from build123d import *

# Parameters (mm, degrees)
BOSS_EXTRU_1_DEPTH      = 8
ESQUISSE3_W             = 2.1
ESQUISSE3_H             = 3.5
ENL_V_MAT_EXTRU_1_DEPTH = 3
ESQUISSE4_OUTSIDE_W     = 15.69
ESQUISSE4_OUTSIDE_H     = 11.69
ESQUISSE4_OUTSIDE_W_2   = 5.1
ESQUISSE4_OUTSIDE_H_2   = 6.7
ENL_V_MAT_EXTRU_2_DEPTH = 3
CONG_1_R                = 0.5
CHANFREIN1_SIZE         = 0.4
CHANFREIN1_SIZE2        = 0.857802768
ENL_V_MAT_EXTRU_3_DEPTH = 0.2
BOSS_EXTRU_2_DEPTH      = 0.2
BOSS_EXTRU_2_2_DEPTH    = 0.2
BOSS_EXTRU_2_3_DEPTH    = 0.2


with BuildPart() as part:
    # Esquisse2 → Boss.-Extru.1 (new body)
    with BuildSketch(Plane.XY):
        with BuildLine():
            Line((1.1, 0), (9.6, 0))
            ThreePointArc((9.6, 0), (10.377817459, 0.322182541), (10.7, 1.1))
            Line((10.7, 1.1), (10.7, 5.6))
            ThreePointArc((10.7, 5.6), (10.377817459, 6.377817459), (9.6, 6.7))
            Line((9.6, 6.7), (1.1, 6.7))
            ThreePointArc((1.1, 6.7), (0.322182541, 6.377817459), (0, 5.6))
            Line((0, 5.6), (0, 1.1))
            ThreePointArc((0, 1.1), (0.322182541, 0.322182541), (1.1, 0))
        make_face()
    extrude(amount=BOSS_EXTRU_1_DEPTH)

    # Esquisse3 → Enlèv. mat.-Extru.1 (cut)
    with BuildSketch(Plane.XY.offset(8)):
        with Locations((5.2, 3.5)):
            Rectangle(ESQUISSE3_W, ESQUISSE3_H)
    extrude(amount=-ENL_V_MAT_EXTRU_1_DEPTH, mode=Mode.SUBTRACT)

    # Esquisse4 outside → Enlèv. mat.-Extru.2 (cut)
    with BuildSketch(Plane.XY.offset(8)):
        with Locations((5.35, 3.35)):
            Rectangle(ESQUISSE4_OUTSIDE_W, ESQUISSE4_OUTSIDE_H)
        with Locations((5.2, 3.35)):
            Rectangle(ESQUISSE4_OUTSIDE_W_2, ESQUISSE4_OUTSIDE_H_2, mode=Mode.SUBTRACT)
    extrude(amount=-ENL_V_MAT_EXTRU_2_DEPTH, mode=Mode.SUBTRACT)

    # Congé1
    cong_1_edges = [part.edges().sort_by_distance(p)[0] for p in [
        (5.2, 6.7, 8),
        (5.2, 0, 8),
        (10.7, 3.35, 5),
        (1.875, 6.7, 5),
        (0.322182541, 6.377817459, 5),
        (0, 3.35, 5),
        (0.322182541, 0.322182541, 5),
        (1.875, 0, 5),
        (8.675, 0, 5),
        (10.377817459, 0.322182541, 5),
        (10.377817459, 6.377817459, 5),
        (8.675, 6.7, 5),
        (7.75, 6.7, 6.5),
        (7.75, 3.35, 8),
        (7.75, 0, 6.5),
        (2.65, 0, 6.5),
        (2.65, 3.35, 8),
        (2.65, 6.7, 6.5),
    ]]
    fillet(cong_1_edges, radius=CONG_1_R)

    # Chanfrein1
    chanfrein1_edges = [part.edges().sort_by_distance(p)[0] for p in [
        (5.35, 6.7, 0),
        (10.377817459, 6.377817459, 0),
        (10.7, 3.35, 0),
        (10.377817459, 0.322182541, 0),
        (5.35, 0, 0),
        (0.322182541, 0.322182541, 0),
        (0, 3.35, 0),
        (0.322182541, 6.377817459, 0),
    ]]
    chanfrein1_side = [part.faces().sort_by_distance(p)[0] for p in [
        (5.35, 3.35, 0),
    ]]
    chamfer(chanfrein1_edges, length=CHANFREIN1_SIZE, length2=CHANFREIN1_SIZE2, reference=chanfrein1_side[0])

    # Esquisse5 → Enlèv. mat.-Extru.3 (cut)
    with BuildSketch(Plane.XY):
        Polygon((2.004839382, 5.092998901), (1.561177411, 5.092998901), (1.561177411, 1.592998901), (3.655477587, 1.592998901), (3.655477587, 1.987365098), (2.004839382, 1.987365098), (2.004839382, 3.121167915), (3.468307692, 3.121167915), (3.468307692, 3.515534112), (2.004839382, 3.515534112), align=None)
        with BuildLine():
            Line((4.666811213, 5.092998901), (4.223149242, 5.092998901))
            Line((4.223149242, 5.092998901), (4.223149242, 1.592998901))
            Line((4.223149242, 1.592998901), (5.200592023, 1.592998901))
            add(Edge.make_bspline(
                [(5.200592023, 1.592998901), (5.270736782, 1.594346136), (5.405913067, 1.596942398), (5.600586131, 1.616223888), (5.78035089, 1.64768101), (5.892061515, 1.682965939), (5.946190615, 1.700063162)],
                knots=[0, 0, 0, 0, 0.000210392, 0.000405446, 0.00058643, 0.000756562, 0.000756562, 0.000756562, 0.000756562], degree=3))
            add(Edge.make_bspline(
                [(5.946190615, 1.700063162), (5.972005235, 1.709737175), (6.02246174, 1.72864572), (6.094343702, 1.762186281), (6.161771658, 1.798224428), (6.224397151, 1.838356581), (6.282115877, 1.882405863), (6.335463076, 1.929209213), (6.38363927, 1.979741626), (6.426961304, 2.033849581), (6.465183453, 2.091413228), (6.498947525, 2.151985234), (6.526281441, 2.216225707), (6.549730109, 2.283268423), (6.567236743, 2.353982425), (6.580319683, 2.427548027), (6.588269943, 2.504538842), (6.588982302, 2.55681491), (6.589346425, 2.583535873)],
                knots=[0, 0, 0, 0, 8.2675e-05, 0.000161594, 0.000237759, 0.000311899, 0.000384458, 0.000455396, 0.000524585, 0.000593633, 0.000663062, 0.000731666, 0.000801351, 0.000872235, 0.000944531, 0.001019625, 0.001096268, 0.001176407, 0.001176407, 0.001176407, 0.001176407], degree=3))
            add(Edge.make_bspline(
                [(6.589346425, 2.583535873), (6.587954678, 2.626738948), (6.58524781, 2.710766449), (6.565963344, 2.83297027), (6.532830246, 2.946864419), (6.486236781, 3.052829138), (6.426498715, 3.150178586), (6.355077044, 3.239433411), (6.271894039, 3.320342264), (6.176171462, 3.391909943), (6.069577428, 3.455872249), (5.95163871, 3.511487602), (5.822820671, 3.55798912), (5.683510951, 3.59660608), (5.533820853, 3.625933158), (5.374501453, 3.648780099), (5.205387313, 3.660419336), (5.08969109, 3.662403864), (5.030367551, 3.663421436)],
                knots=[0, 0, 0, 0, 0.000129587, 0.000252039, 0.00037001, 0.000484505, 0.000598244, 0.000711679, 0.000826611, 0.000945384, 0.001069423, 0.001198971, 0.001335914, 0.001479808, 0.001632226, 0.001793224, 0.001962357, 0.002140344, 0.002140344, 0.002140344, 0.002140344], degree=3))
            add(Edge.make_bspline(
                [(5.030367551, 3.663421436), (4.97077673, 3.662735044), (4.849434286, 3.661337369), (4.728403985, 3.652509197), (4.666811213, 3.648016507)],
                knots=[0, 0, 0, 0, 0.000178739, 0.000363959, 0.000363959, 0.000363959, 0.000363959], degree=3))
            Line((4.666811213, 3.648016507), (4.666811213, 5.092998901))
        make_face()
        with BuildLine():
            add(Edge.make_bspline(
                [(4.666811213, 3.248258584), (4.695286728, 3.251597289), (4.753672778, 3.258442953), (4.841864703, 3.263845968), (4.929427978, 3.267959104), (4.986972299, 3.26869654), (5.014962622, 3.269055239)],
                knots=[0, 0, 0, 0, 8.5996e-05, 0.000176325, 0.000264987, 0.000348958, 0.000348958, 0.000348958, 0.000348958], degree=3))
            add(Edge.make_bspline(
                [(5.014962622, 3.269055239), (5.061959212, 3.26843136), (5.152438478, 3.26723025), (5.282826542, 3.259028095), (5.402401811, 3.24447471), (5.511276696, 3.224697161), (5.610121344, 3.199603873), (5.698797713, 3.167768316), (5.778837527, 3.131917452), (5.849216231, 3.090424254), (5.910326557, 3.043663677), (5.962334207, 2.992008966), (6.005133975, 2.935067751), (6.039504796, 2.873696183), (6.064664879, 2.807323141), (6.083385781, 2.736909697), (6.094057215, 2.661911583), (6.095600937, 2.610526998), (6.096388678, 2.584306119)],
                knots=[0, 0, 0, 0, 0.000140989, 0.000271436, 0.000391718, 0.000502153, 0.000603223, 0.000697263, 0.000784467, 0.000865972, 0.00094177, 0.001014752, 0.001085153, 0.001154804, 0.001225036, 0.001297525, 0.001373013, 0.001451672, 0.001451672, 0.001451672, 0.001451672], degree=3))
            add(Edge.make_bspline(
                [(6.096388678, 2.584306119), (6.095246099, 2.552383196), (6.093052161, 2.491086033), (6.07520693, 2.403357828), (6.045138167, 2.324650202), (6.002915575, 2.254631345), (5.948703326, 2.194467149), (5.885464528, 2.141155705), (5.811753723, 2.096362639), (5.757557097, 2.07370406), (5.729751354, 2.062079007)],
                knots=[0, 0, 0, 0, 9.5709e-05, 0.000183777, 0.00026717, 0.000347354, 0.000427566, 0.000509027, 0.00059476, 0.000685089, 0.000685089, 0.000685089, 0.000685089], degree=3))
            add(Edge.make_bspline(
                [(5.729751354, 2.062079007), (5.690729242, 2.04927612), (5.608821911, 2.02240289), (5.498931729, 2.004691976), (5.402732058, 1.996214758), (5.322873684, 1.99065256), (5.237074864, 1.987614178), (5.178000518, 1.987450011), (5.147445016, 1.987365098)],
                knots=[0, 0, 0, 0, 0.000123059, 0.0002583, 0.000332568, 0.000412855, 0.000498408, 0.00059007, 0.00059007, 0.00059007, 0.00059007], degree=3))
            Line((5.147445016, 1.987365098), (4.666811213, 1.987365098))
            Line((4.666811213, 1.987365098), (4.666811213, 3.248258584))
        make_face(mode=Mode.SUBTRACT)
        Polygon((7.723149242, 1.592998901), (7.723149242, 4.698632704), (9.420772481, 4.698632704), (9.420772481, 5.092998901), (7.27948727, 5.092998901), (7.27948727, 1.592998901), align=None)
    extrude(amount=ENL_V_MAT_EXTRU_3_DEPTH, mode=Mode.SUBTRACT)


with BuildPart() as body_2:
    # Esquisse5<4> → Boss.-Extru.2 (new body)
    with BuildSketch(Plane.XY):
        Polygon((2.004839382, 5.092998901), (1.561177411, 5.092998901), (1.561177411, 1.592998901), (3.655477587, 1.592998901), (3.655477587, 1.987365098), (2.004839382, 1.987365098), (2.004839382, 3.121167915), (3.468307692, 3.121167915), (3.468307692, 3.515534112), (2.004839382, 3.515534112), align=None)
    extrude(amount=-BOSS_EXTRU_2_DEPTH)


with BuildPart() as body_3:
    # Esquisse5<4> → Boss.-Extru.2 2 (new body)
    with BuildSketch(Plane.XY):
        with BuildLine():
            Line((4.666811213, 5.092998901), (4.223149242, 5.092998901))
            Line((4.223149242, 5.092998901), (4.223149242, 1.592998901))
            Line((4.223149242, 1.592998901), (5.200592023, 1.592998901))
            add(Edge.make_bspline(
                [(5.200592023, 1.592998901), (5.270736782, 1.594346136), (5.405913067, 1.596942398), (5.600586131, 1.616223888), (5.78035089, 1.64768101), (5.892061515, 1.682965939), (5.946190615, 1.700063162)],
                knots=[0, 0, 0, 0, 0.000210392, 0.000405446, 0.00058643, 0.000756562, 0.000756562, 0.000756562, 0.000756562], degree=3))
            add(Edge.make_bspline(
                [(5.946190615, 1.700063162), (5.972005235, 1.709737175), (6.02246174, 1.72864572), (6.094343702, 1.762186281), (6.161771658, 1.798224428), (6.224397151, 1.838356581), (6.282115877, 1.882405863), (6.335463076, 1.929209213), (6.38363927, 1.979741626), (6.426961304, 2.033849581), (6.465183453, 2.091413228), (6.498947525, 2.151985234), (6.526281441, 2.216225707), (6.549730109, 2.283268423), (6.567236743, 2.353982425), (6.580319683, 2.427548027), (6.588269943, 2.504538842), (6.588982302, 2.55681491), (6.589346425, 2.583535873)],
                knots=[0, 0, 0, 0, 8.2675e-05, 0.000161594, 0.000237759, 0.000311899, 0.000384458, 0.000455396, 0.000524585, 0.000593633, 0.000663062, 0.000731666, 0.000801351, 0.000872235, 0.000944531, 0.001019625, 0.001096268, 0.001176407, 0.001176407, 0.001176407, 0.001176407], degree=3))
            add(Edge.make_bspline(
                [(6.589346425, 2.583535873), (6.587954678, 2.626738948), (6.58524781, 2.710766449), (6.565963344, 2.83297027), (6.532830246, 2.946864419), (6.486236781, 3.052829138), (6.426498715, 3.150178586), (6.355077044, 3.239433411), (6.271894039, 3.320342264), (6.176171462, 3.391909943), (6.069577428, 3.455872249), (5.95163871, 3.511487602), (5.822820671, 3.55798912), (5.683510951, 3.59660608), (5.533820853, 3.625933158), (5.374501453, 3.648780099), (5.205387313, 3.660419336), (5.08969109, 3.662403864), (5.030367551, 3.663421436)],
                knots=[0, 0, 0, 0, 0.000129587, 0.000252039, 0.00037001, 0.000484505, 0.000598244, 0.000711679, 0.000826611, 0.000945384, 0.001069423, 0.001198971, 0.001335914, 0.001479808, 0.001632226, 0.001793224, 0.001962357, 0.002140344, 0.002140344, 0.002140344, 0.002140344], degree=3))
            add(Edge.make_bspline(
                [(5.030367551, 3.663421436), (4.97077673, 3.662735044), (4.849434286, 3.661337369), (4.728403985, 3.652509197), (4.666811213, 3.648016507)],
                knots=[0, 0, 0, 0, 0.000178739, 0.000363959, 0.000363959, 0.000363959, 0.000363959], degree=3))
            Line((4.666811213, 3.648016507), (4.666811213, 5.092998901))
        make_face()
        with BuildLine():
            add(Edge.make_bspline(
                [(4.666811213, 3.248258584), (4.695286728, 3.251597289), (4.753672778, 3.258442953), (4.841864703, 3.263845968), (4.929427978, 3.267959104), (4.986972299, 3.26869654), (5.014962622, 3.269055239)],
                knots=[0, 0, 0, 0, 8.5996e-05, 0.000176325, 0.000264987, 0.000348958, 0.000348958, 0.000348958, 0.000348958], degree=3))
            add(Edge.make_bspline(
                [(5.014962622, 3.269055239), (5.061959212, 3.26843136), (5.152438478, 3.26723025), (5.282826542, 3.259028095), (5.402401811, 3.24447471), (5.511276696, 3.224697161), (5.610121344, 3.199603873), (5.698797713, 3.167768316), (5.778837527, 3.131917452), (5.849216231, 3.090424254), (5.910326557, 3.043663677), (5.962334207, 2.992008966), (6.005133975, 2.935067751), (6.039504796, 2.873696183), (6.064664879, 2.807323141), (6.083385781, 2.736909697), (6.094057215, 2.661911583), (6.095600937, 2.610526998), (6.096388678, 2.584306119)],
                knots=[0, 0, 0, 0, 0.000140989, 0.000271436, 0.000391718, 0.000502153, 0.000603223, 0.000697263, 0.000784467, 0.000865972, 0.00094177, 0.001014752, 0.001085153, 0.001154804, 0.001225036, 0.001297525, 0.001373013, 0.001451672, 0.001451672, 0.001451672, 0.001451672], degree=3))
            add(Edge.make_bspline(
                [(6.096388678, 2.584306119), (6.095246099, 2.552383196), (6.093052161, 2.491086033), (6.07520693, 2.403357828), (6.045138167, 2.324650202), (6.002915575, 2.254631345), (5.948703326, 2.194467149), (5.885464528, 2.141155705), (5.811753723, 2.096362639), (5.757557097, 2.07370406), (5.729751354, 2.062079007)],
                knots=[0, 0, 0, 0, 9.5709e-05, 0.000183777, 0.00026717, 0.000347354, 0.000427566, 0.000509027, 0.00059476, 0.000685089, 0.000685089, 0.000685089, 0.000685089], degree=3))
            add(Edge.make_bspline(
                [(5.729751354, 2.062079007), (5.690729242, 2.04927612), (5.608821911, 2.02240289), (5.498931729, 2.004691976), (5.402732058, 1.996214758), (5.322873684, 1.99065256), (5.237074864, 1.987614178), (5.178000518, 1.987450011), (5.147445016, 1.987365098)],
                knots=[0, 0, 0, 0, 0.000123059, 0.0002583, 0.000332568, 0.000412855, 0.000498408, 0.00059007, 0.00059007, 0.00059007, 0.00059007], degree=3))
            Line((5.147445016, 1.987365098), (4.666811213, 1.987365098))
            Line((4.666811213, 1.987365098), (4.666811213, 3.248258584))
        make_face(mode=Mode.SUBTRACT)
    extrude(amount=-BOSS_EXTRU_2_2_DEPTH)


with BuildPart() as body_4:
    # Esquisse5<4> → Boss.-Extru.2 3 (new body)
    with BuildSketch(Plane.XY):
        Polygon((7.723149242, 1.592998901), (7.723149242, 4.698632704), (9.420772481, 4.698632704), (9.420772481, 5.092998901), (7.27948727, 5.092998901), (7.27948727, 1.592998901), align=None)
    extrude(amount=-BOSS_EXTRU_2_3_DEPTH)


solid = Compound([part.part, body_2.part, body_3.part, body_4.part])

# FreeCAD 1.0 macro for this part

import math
import FreeCAD as App
import Part
import Sketcher
from FreeCAD import Vector
Q = App.Units.Quantity


def edges_at(feature, points):
    """Names of the edges that pass closest to the given points."""
    edges = feature.Shape.Edges
    near = lambda p: min(range(len(edges)), key=lambda i: edges[i].distToShape(Part.Vertex(*p))[0])
    return sorted({f"Edge{near(p) + 1}" for p in points})

doc = App.newDocument("Part")
body = doc.addObject("PartDesign::Body", "Body")

# Sketch on XY plane
sketch1 = body.newObject("Sketcher::SketchObject", "Sketch")
sketch1.AttachmentSupport = (doc.getObject("XY_Plane"), [""])
sketch1.MapMode = "FlatFace"
sketch1.addGeometry([
    Part.LineSegment(Vector(1.1, 0, 0), Vector(9.6, 0, 0)),  # 0
    Part.ArcOfCircle(Part.Circle(Vector(9.6, 1.1, 0), Vector(0, 0, 1), 1.1), math.radians(-90), math.radians(0)),  # 1
    Part.LineSegment(Vector(10.7, 1.1, 0), Vector(10.7, 5.6, 0)),  # 2
    Part.ArcOfCircle(Part.Circle(Vector(9.6, 5.6, 0), Vector(0, 0, 1), 1.1), math.radians(0), math.radians(90)),  # 3
    Part.LineSegment(Vector(9.6, 6.7, 0), Vector(1.1, 6.7, 0)),  # 4
    Part.ArcOfCircle(Part.Circle(Vector(1.1, 5.6, 0), Vector(0, 0, 1), 1.1), math.radians(90), math.radians(180)),  # 5
    Part.LineSegment(Vector(0, 5.6, 0), Vector(0, 1.1, 0)),  # 6
    Part.ArcOfCircle(Part.Circle(Vector(1.1, 1.1, 0), Vector(0, 0, 1), 1.1), math.radians(-180), math.radians(-90)),  # 7
], False)
sketch1.addConstraint([
    Sketcher.Constraint("Tangent", 0, 2, 1, 1),
    Sketcher.Constraint("Tangent", 1, 2, 2, 1),
    Sketcher.Constraint("Tangent", 2, 2, 3, 1),
    Sketcher.Constraint("Tangent", 3, 2, 4, 1),
    Sketcher.Constraint("Tangent", 4, 2, 5, 1),
    Sketcher.Constraint("Tangent", 5, 2, 6, 1),
    Sketcher.Constraint("Tangent", 6, 2, 7, 1),
    Sketcher.Constraint("Tangent", 7, 2, 0, 1),
    Sketcher.Constraint("Horizontal", 0),
    Sketcher.Constraint("Vertical", 2),
    Sketcher.Constraint("Horizontal", 4),
    Sketcher.Constraint("Vertical", 6),
    Sketcher.Constraint("Equal", 1, 3),
    Sketcher.Constraint("Equal", 3, 5),
    Sketcher.Constraint("Equal", 5, 7),
    Sketcher.Constraint("PointOnObject", 0, 2, -1),
    Sketcher.Constraint("PointOnObject", 5, 2, -2),
    Sketcher.Constraint("Radius", 1, Q("1.1 mm")),
    Sketcher.Constraint("DistanceX", 0, 1, 0, 2, Q("8.5 mm")),
    Sketcher.Constraint("DistanceY", 2, 1, 2, 2, Q("4.5 mm")),
])
pad1 = body.newObject("PartDesign::Pad", "Pad")
pad1.Profile = sketch1
pad1.Length = 8

# Sketch on XY plane
sketch2 = body.newObject("Sketcher::SketchObject", "Sketch001")
sketch2.AttachmentSupport = (doc.getObject("XY_Plane"), [""])
sketch2.MapMode = "FlatFace"
sketch2.AttachmentOffset = App.Placement(Vector(0, 0, 8), App.Rotation())
sketch2.addGeometry([
    Part.LineSegment(Vector(4.2, 5.2, 0), Vector(4.2, 1.8, 0)),
    Part.LineSegment(Vector(4.2, 1.8, 0), Vector(6.2, 1.8, 0)),
    Part.LineSegment(Vector(6.2, 1.8, 0), Vector(6.2, 5.2, 0)),
    Part.LineSegment(Vector(6.2, 5.2, 0), Vector(4.2, 5.2, 0)),
], False)
sketch2.addConstraint([
    Sketcher.Constraint("Coincident", 0, 2, 1, 1),
    Sketcher.Constraint("Coincident", 1, 2, 2, 1),
    Sketcher.Constraint("Coincident", 2, 2, 3, 1),
    Sketcher.Constraint("Coincident", 3, 2, 0, 1),
    Sketcher.Constraint("Vertical", 0),
    Sketcher.Constraint("Horizontal", 1),
    Sketcher.Constraint("Vertical", 2),
    Sketcher.Constraint("Horizontal", 3),
    Sketcher.Constraint("DistanceX", 1, 1, 1, 2, Q("2.1 mm")),
    Sketcher.Constraint("DistanceY", 0, 2, 0, 1, Q("3.5 mm")),
    Sketcher.Constraint("DistanceX", -1, 1, 0, 2, Q("4.15 mm")),
    Sketcher.Constraint("DistanceY", -1, 1, 0, 2, Q("1.75 mm")),
])
pocket1 = body.newObject("PartDesign::Pocket", "Pocket")
pocket1.Profile = sketch2
pocket1.Length = 3

# Sketch on XY plane
sketch3 = body.newObject("Sketcher::SketchObject", "Sketch002")
sketch3.AttachmentSupport = (doc.getObject("XY_Plane"), [""])
sketch3.MapMode = "FlatFace"
sketch3.AttachmentOffset = App.Placement(Vector(0, 0, 8), App.Rotation())
sketch3.addGeometry([
    Part.LineSegment(Vector(-2, 9, 0), Vector(-2, -2, 0)),  # 0
    Part.LineSegment(Vector(-2, -2, 0), Vector(13, -2, 0)),  # 1
    Part.LineSegment(Vector(13, -2, 0), Vector(13, 9, 0)),  # 2
    Part.LineSegment(Vector(13, 9, 0), Vector(-2, 9, 0)),  # 3
    Part.LineSegment(Vector(8, 0, 0), Vector(3, 0, 0)),  # 4
    Part.LineSegment(Vector(3, 0, 0), Vector(3, 7, 0)),  # 5
    Part.LineSegment(Vector(3, 7, 0), Vector(8, 7, 0)),  # 6
    Part.LineSegment(Vector(8, 7, 0), Vector(8, 0, 0)),  # 7
], False)
sketch3.addConstraint([
    Sketcher.Constraint("Coincident", 0, 2, 1, 1),
    Sketcher.Constraint("Coincident", 1, 2, 2, 1),
    Sketcher.Constraint("Coincident", 2, 2, 3, 1),
    Sketcher.Constraint("Coincident", 3, 2, 0, 1),
    Sketcher.Constraint("Coincident", 4, 2, 5, 1),
    Sketcher.Constraint("Coincident", 5, 2, 6, 1),
    Sketcher.Constraint("Coincident", 6, 2, 7, 1),
    Sketcher.Constraint("Coincident", 7, 2, 4, 1),
    Sketcher.Constraint("Vertical", 0),
    Sketcher.Constraint("Horizontal", 1),
    Sketcher.Constraint("Vertical", 2),
    Sketcher.Constraint("Horizontal", 3),
    Sketcher.Constraint("Horizontal", 4),
    Sketcher.Constraint("Vertical", 5),
    Sketcher.Constraint("Horizontal", 6),
    Sketcher.Constraint("Vertical", 7),
    Sketcher.Constraint("PointOnObject", 4, 2, -1),
    Sketcher.Constraint("DistanceX", 4, 2, 4, 1, Q("5.1 mm")),
    Sketcher.Constraint("DistanceY", 5, 1, 5, 2, Q("6.7 mm")),
    Sketcher.Constraint("DistanceX", 1, 1, 1, 2, Q("15.69 mm")),
    Sketcher.Constraint("DistanceY", 0, 2, 0, 1, Q("11.69 mm")),
    Sketcher.Constraint("DistanceX", -1, 1, 4, 2, Q("2.65 mm")),
    Sketcher.Constraint("DistanceX", 0, 2, -1, 1, Q("2.495 mm")),
    Sketcher.Constraint("DistanceY", 0, 2, -1, 1, Q("2.495 mm")),
])
pocket2 = body.newObject("PartDesign::Pocket", "Pocket001")
pocket2.Profile = sketch3
pocket2.Length = 3
doc.recompute()

fillet = body.newObject("PartDesign::Fillet", "Fillet")
fillet.Base = (pocket2, edges_at(pocket2, [
    (5.2, 6.7, 8),
    (5.2, 0, 8),
    (10.7, 3.35, 5),
    (1.875, 6.7, 5),
    (0.322, 6.378, 5),
    (0, 3.35, 5),
    (0.322, 0.322, 5),
    (1.875, 0, 5),
    (8.675, 0, 5),
    (10.378, 0.322, 5),
    (10.378, 6.378, 5),
    (8.675, 6.7, 5),
    (7.75, 6.7, 6.5),
    (7.75, 3.35, 8),
    (7.75, 0, 6.5),
    (2.65, 0, 6.5),
    (2.65, 3.35, 8),
    (2.65, 6.7, 6.5),
]))
fillet.Radius = 0.5
doc.recompute()

chamfer = body.newObject("PartDesign::Chamfer", "Chamfer")
chamfer.Base = (fillet, edges_at(fillet, [
    (5.35, 6.7, 0),
    (10.378, 6.378, 0),
    (10.7, 3.35, 0),
    (10.378, 0.322, 0),
    (5.35, 0, 0),
    (0.322, 0.322, 0),
    (0, 3.35, 0),
    (0.322, 6.378, 0),
]))
chamfer.ChamferType = "Two distances"
chamfer.Size = 0.4
chamfer.Size2 = 0.857803

# Sketch on XY plane
sketch4 = body.newObject("Sketcher::SketchObject", "Sketch003")
sketch4.AttachmentSupport = (doc.getObject("XY_Plane"), [""])
sketch4.MapMode = "FlatFace"
sketch4.addGeometry([
    Part.LineSegment(Vector(2.004839, 5.092999, 0), Vector(1.561177, 5.092999, 0)),  # 0
    Part.LineSegment(Vector(1.561177, 5.092999, 0), Vector(1.561177, 1.592999, 0)),  # 1
    Part.LineSegment(Vector(1.561177, 1.592999, 0), Vector(3.655478, 1.592999, 0)),  # 2
    Part.LineSegment(Vector(3.655478, 1.592999, 0), Vector(3.655478, 1.987365, 0)),  # 3
    Part.LineSegment(Vector(3.655478, 1.987365, 0), Vector(2.004839, 1.987365, 0)),  # 4
    Part.LineSegment(Vector(2.004839, 1.987365, 0), Vector(2.004839, 3.121168, 0)),  # 5
    Part.LineSegment(Vector(2.004839, 3.121168, 0), Vector(3.468308, 3.121168, 0)),  # 6
    Part.LineSegment(Vector(3.468308, 3.121168, 0), Vector(3.468308, 3.515534, 0)),  # 7
    Part.LineSegment(Vector(3.468308, 3.515534, 0), Vector(2.004839, 3.515534, 0)),  # 8
    Part.LineSegment(Vector(2.004839, 3.515534, 0), Vector(2.004839, 5.092999, 0)),  # 9
    Part.LineSegment(Vector(4.666811, 5.092999, 0), Vector(4.223149, 5.092999, 0)),  # 10
    Part.LineSegment(Vector(4.223149, 5.092999, 0), Vector(4.223149, 1.592999, 0)),  # 11
    Part.LineSegment(Vector(4.223149, 1.592999, 0), Vector(5.200592, 1.592999, 0)),  # 12
    Part.BSplineCurve([Vector(5.200592, 1.592999, 0), Vector(5.270737, 1.594346, 0), Vector(5.405913, 1.596942, 0), Vector(5.600586, 1.616224, 0), Vector(5.780351, 1.647681, 0), Vector(5.892062, 1.682966, 0), Vector(5.946191, 1.700063, 0)], [4, 1, 1, 1, 4], [0, 0.000210392, 0.000405446, 0.00058643, 0.000756562], False, 3, [1, 1, 1, 1, 1, 1, 1], False),  # 13
    Part.BSplineCurve([Vector(5.946191, 1.700063, 0), Vector(5.972005, 1.709737, 0), Vector(6.022462, 1.728646, 0), Vector(6.094344, 1.762186, 0), Vector(6.161772, 1.798224, 0), Vector(6.224397, 1.838357, 0), Vector(6.282116, 1.882406, 0), Vector(6.335463, 1.929209, 0), Vector(6.383639, 1.979742, 0), Vector(6.426961, 2.03385, 0), Vector(6.465183, 2.091413, 0), Vector(6.498948, 2.151985, 0), Vector(6.526281, 2.216226, 0), Vector(6.54973, 2.283268, 0), Vector(6.567237, 2.353982, 0), Vector(6.58032, 2.427548, 0), Vector(6.58827, 2.504539, 0), Vector(6.588982, 2.556815, 0), Vector(6.589346, 2.583536, 0)], [4, 1, 1, 1, 1, 1, 1, 1, 1, 1, 1, 1, 1, 1, 1, 1, 4], [0, 0.000082675, 0.000161594, 0.000237759, 0.000311899, 0.000384458, 0.000455396, 0.000524585, 0.000593633, 0.000663062, 0.000731666, 0.000801351, 0.000872235, 0.000944531, 0.001019625, 0.001096268, 0.001176407], False, 3, [1, 1, 1, 1, 1, 1, 1, 1, 1, 1, 1, 1, 1, 1, 1, 1, 1, 1, 1], False),  # 14
    Part.BSplineCurve([Vector(6.589346, 2.583536, 0), Vector(6.587955, 2.626739, 0), Vector(6.585248, 2.710766, 0), Vector(6.565963, 2.83297, 0), Vector(6.53283, 2.946864, 0), Vector(6.486237, 3.052829, 0), Vector(6.426499, 3.150179, 0), Vector(6.355077, 3.239433, 0), Vector(6.271894, 3.320342, 0), Vector(6.176171, 3.39191, 0), Vector(6.069577, 3.455872, 0), Vector(5.951639, 3.511488, 0), Vector(5.822821, 3.557989, 0), Vector(5.683511, 3.596606, 0), Vector(5.533821, 3.625933, 0), Vector(5.374501, 3.64878, 0), Vector(5.205387, 3.660419, 0), Vector(5.089691, 3.662404, 0), Vector(5.030368, 3.663421, 0)], [4, 1, 1, 1, 1, 1, 1, 1, 1, 1, 1, 1, 1, 1, 1, 1, 4], [0, 0.000129587, 0.000252039, 0.00037001, 0.000484505, 0.000598244, 0.000711679, 0.000826611, 0.000945384, 0.001069423, 0.001198971, 0.001335914, 0.001479808, 0.001632226, 0.001793224, 0.001962357, 0.002140344], False, 3, [1, 1, 1, 1, 1, 1, 1, 1, 1, 1, 1, 1, 1, 1, 1, 1, 1, 1, 1], False),  # 15
    Part.BSplineCurve([Vector(5.030368, 3.663421, 0), Vector(4.970777, 3.662735, 0), Vector(4.849434, 3.661337, 0), Vector(4.728404, 3.652509, 0), Vector(4.666811, 3.648017, 0)], [4, 1, 4], [0, 0.000178739, 0.000363959], False, 3, [1, 1, 1, 1, 1], False),  # 16
    Part.LineSegment(Vector(4.666811, 3.648017, 0), Vector(4.666811, 5.092999, 0)),  # 17
    Part.LineSegment(Vector(4.666811, 1.987365, 0), Vector(4.666811, 3.248259, 0)),  # 18
    Part.BSplineCurve([Vector(4.666811, 3.248259, 0), Vector(4.695287, 3.251597, 0), Vector(4.753673, 3.258443, 0), Vector(4.841865, 3.263846, 0), Vector(4.929428, 3.267959, 0), Vector(4.986972, 3.268697, 0), Vector(5.014963, 3.269055, 0)], [4, 1, 1, 1, 4], [0, 0.000085996, 0.000176325, 0.000264987, 0.000348958], False, 3, [1, 1, 1, 1, 1, 1, 1], False),  # 19
    Part.BSplineCurve([Vector(5.014963, 3.269055, 0), Vector(5.061959, 3.268431, 0), Vector(5.152438, 3.26723, 0), Vector(5.282827, 3.259028, 0), Vector(5.402402, 3.244475, 0), Vector(5.511277, 3.224697, 0), Vector(5.610121, 3.199604, 0), Vector(5.698798, 3.167768, 0), Vector(5.778838, 3.131917, 0), Vector(5.849216, 3.090424, 0), Vector(5.910327, 3.043664, 0), Vector(5.962334, 2.992009, 0), Vector(6.005134, 2.935068, 0), Vector(6.039505, 2.873696, 0), Vector(6.064665, 2.807323, 0), Vector(6.083386, 2.73691, 0), Vector(6.094057, 2.661912, 0), Vector(6.095601, 2.610527, 0), Vector(6.096389, 2.584306, 0)], [4, 1, 1, 1, 1, 1, 1, 1, 1, 1, 1, 1, 1, 1, 1, 1, 4], [0, 0.000140989, 0.000271436, 0.000391718, 0.000502153, 0.000603223, 0.000697263, 0.000784467, 0.000865972, 0.00094177, 0.001014752, 0.001085153, 0.001154804, 0.001225036, 0.001297525, 0.001373013, 0.001451672], False, 3, [1, 1, 1, 1, 1, 1, 1, 1, 1, 1, 1, 1, 1, 1, 1, 1, 1, 1, 1], False),  # 20
    Part.BSplineCurve([Vector(6.096389, 2.584306, 0), Vector(6.095246, 2.552383, 0), Vector(6.093052, 2.491086, 0), Vector(6.075207, 2.403358, 0), Vector(6.045138, 2.32465, 0), Vector(6.002916, 2.254631, 0), Vector(5.948703, 2.194467, 0), Vector(5.885465, 2.141156, 0), Vector(5.811754, 2.096363, 0), Vector(5.757557, 2.073704, 0), Vector(5.729751, 2.062079, 0)], [4, 1, 1, 1, 1, 1, 1, 1, 4], [0, 0.000095709, 0.000183777, 0.00026717, 0.000347354, 0.000427566, 0.000509027, 0.00059476, 0.000685089], False, 3, [1, 1, 1, 1, 1, 1, 1, 1, 1, 1, 1], False),  # 21
    Part.BSplineCurve([Vector(5.729751, 2.062079, 0), Vector(5.690729, 2.049276, 0), Vector(5.608822, 2.022403, 0), Vector(5.498932, 2.004692, 0), Vector(5.402732, 1.996215, 0), Vector(5.322874, 1.990653, 0), Vector(5.237075, 1.987614, 0), Vector(5.178001, 1.98745, 0), Vector(5.147445, 1.987365, 0)], [4, 1, 1, 1, 1, 1, 4], [0, 0.000123059, 0.0002583, 0.000332568, 0.000412855, 0.000498408, 0.00059007], False, 3, [1, 1, 1, 1, 1, 1, 1, 1, 1], False),  # 22
    Part.LineSegment(Vector(5.147445, 1.987365, 0), Vector(4.666811, 1.987365, 0)),  # 23
    Part.LineSegment(Vector(7.723149, 1.592999, 0), Vector(7.723149, 4.698633, 0)),  # 24
    Part.LineSegment(Vector(7.723149, 4.698633, 0), Vector(9.420772, 4.698633, 0)),  # 25
    Part.LineSegment(Vector(9.420772, 4.698633, 0), Vector(9.420772, 5.092999, 0)),  # 26
    Part.LineSegment(Vector(9.420772, 5.092999, 0), Vector(7.279487, 5.092999, 0)),  # 27
    Part.LineSegment(Vector(7.279487, 5.092999, 0), Vector(7.279487, 1.592999, 0)),  # 28
    Part.LineSegment(Vector(7.279487, 1.592999, 0), Vector(7.723149, 1.592999, 0)),  # 29
], False)
sketch4.addConstraint([
    Sketcher.Constraint("Block", 13),
    Sketcher.Constraint("Block", 14),
    Sketcher.Constraint("Block", 15),
    Sketcher.Constraint("Block", 16),
    Sketcher.Constraint("Block", 19),
    Sketcher.Constraint("Block", 20),
    Sketcher.Constraint("Block", 21),
    Sketcher.Constraint("Block", 22),
    Sketcher.Constraint("Coincident", 0, 2, 1, 1),
    Sketcher.Constraint("Coincident", 1, 2, 2, 1),
    Sketcher.Constraint("Coincident", 2, 2, 3, 1),
    Sketcher.Constraint("Coincident", 3, 2, 4, 1),
    Sketcher.Constraint("Coincident", 4, 2, 5, 1),
    Sketcher.Constraint("Coincident", 5, 2, 6, 1),
    Sketcher.Constraint("Coincident", 6, 2, 7, 1),
    Sketcher.Constraint("Coincident", 7, 2, 8, 1),
    Sketcher.Constraint("Coincident", 8, 2, 9, 1),
    Sketcher.Constraint("Coincident", 9, 2, 0, 1),
    Sketcher.Constraint("Coincident", 10, 2, 11, 1),
    Sketcher.Constraint("Coincident", 11, 2, 12, 1),
    Sketcher.Constraint("Coincident", 12, 2, 13, 1),
    Sketcher.Constraint("Coincident", 16, 2, 17, 1),
    Sketcher.Constraint("Coincident", 17, 2, 10, 1),
    Sketcher.Constraint("Coincident", 18, 2, 19, 1),
    Sketcher.Constraint("Coincident", 22, 2, 23, 1),
    Sketcher.Constraint("Coincident", 23, 2, 18, 1),
    Sketcher.Constraint("Coincident", 24, 2, 25, 1),
    Sketcher.Constraint("Coincident", 25, 2, 26, 1),
    Sketcher.Constraint("Coincident", 26, 2, 27, 1),
    Sketcher.Constraint("Coincident", 27, 2, 28, 1),
    Sketcher.Constraint("Coincident", 28, 2, 29, 1),
    Sketcher.Constraint("Coincident", 29, 2, 24, 1),
    Sketcher.Constraint("Horizontal", 0),
    Sketcher.Constraint("Vertical", 1),
    Sketcher.Constraint("Horizontal", 2),
    Sketcher.Constraint("Vertical", 3),
    Sketcher.Constraint("Horizontal", 4),
    Sketcher.Constraint("Vertical", 5),
    Sketcher.Constraint("Horizontal", 6),
    Sketcher.Constraint("Vertical", 7),
    Sketcher.Constraint("Horizontal", 8),
    Sketcher.Constraint("Vertical", 9),
    Sketcher.Constraint("Horizontal", 10),
    Sketcher.Constraint("Vertical", 11),
    Sketcher.Constraint("Horizontal", 12),
    Sketcher.Constraint("Vertical", 17),
    Sketcher.Constraint("Vertical", 18),
    Sketcher.Constraint("Horizontal", 23),
    Sketcher.Constraint("Vertical", 24),
    Sketcher.Constraint("Horizontal", 25),
    Sketcher.Constraint("Vertical", 26),
    Sketcher.Constraint("Horizontal", 27),
    Sketcher.Constraint("Vertical", 28),
    Sketcher.Constraint("Horizontal", 29),
    Sketcher.Constraint("DistanceY", 1, 2, 1, 1, Q("3.5 mm")),
    Sketcher.Constraint("DistanceY", 11, 2, 11, 1, Q("3.5 mm")),
    Sketcher.Constraint("DistanceY", 28, 2, 28, 1, Q("3.5 mm")),
    Sketcher.Constraint("DistanceX", 10, 2, 24, 2, Q("3.5 mm")),
    Sketcher.Constraint("DistanceX", 2, 1, 2, 2, Q("2.0943 mm")),
    Sketcher.Constraint("DistanceY", -1, 1, 0, 2, Q("5.092999 mm")),
    Sketcher.Constraint("DistanceY", -1, 1, 26, 2, Q("5.092999 mm")),
    Sketcher.Constraint("DistanceX", 0, 2, 0, 1, Q("0.443662 mm")),
    Sketcher.Constraint("DistanceX", 4, 2, 4, 1, Q("1.650638 mm")),
    Sketcher.Constraint("DistanceX", 6, 1, 6, 2, Q("1.463468 mm")),
    Sketcher.Constraint("DistanceX", 10, 2, 10, 1, Q("0.443662 mm")),
    Sketcher.Constraint("DistanceX", 29, 1, 29, 2, Q("0.443662 mm")),
    Sketcher.Constraint("DistanceX", 25, 1, 25, 2, Q("1.697623 mm")),
    Sketcher.Constraint("DistanceY", 3, 1, 3, 2, Q("0.394366 mm")),
    Sketcher.Constraint("DistanceY", 5, 1, 5, 2, Q("1.133803 mm")),
    Sketcher.Constraint("DistanceY", 7, 1, 7, 2, Q("0.394366 mm")),
    Sketcher.Constraint("DistanceY", 24, 1, 24, 2, Q("3.105634 mm")),
    Sketcher.Constraint("DistanceX", -1, 1, 4, 2, Q("2.004839 mm")),
])
pocket3 = body.newObject("PartDesign::Pocket", "Pocket002")
pocket3.Profile = sketch4
pocket3.Length = 0.2
pocket3.Reversed = True
body2 = doc.addObject("PartDesign::Body", "Body001")

# Sketch on XY plane
sketch5 = body2.newObject("Sketcher::SketchObject", "Sketch004")
sketch5.AttachmentSupport = (doc.getObject("XY_Plane001"), [""])
sketch5.MapMode = "FlatFace"
sketch5.addGeometry([
    Part.LineSegment(Vector(2, 5.09, 0), Vector(1.56, 5.09, 0)),  # 0
    Part.LineSegment(Vector(1.56, 5.09, 0), Vector(1.56, 1.59, 0)),  # 1
    Part.LineSegment(Vector(1.56, 1.59, 0), Vector(3.66, 1.59, 0)),  # 2
    Part.LineSegment(Vector(3.66, 1.59, 0), Vector(3.66, 1.99, 0)),  # 3
    Part.LineSegment(Vector(3.66, 1.99, 0), Vector(2, 1.99, 0)),  # 4
    Part.LineSegment(Vector(2, 1.99, 0), Vector(2, 3.12, 0)),  # 5
    Part.LineSegment(Vector(2, 3.12, 0), Vector(3.47, 3.12, 0)),  # 6
    Part.LineSegment(Vector(3.47, 3.12, 0), Vector(3.47, 3.52, 0)),  # 7
    Part.LineSegment(Vector(3.47, 3.52, 0), Vector(2, 3.52, 0)),  # 8
    Part.LineSegment(Vector(2, 3.52, 0), Vector(2, 5.09, 0)),  # 9
], False)
sketch5.addConstraint([
    Sketcher.Constraint("Coincident", 0, 2, 1, 1),
    Sketcher.Constraint("Coincident", 1, 2, 2, 1),
    Sketcher.Constraint("Coincident", 2, 2, 3, 1),
    Sketcher.Constraint("Coincident", 3, 2, 4, 1),
    Sketcher.Constraint("Coincident", 4, 2, 5, 1),
    Sketcher.Constraint("Coincident", 5, 2, 6, 1),
    Sketcher.Constraint("Coincident", 6, 2, 7, 1),
    Sketcher.Constraint("Coincident", 7, 2, 8, 1),
    Sketcher.Constraint("Coincident", 8, 2, 9, 1),
    Sketcher.Constraint("Coincident", 9, 2, 0, 1),
    Sketcher.Constraint("Horizontal", 0),
    Sketcher.Constraint("Vertical", 1),
    Sketcher.Constraint("Horizontal", 2),
    Sketcher.Constraint("Vertical", 3),
    Sketcher.Constraint("Horizontal", 4),
    Sketcher.Constraint("Vertical", 5),
    Sketcher.Constraint("Horizontal", 6),
    Sketcher.Constraint("Vertical", 7),
    Sketcher.Constraint("Horizontal", 8),
    Sketcher.Constraint("Vertical", 9),
    Sketcher.Constraint("Vertical", 5, 2, 8, 2),
    Sketcher.Constraint("Equal", 3, 7),
    Sketcher.Constraint("DistanceY", 1, 2, 1, 1, Q("3.5 mm")),
    Sketcher.Constraint("DistanceX", 2, 1, 2, 2, Q("2.0943 mm")),
    Sketcher.Constraint("DistanceY", -1, 1, 0, 2, Q("5.092999 mm")),
    Sketcher.Constraint("DistanceX", 0, 2, 0, 1, Q("0.443662 mm")),
    Sketcher.Constraint("DistanceX", 6, 1, 6, 2, Q("1.463468 mm")),
    Sketcher.Constraint("DistanceY", 3, 1, 3, 2, Q("0.394366 mm")),
    Sketcher.Constraint("DistanceY", 5, 1, 5, 2, Q("1.133803 mm")),
    Sketcher.Constraint("DistanceX", -1, 1, 4, 2, Q("2.004839 mm")),
])
pad2 = body2.newObject("PartDesign::Pad", "Pad001")
pad2.Profile = sketch5
pad2.Length = 0.2
pad2.Reversed = True
body3 = doc.addObject("PartDesign::Body", "Body002")

# Sketch on XY plane
sketch6 = body3.newObject("Sketcher::SketchObject", "Sketch005")
sketch6.AttachmentSupport = (doc.getObject("XY_Plane002"), [""])
sketch6.MapMode = "FlatFace"
sketch6.addGeometry([
    Part.LineSegment(Vector(4.666811, 5.092999, 0), Vector(4.223149, 5.092999, 0)),  # 0
    Part.LineSegment(Vector(4.223149, 5.092999, 0), Vector(4.223149, 1.592999, 0)),  # 1
    Part.LineSegment(Vector(4.223149, 1.592999, 0), Vector(5.200592, 1.592999, 0)),  # 2
    Part.BSplineCurve([Vector(5.200592, 1.592999, 0), Vector(5.270737, 1.594346, 0), Vector(5.405913, 1.596942, 0), Vector(5.600586, 1.616224, 0), Vector(5.780351, 1.647681, 0), Vector(5.892062, 1.682966, 0), Vector(5.946191, 1.700063, 0)], [4, 1, 1, 1, 4], [0, 0.000210392, 0.000405446, 0.00058643, 0.000756562], False, 3, [1, 1, 1, 1, 1, 1, 1], False),  # 3
    Part.BSplineCurve([Vector(5.946191, 1.700063, 0), Vector(5.972005, 1.709737, 0), Vector(6.022462, 1.728646, 0), Vector(6.094344, 1.762186, 0), Vector(6.161772, 1.798224, 0), Vector(6.224397, 1.838357, 0), Vector(6.282116, 1.882406, 0), Vector(6.335463, 1.929209, 0), Vector(6.383639, 1.979742, 0), Vector(6.426961, 2.03385, 0), Vector(6.465183, 2.091413, 0), Vector(6.498948, 2.151985, 0), Vector(6.526281, 2.216226, 0), Vector(6.54973, 2.283268, 0), Vector(6.567237, 2.353982, 0), Vector(6.58032, 2.427548, 0), Vector(6.58827, 2.504539, 0), Vector(6.588982, 2.556815, 0), Vector(6.589346, 2.583536, 0)], [4, 1, 1, 1, 1, 1, 1, 1, 1, 1, 1, 1, 1, 1, 1, 1, 4], [0, 0.000082675, 0.000161594, 0.000237759, 0.000311899, 0.000384458, 0.000455396, 0.000524585, 0.000593633, 0.000663062, 0.000731666, 0.000801351, 0.000872235, 0.000944531, 0.001019625, 0.001096268, 0.001176407], False, 3, [1, 1, 1, 1, 1, 1, 1, 1, 1, 1, 1, 1, 1, 1, 1, 1, 1, 1, 1], False),  # 4
    Part.BSplineCurve([Vector(6.589346, 2.583536, 0), Vector(6.587955, 2.626739, 0), Vector(6.585248, 2.710766, 0), Vector(6.565963, 2.83297, 0), Vector(6.53283, 2.946864, 0), Vector(6.486237, 3.052829, 0), Vector(6.426499, 3.150179, 0), Vector(6.355077, 3.239433, 0), Vector(6.271894, 3.320342, 0), Vector(6.176171, 3.39191, 0), Vector(6.069577, 3.455872, 0), Vector(5.951639, 3.511488, 0), Vector(5.822821, 3.557989, 0), Vector(5.683511, 3.596606, 0), Vector(5.533821, 3.625933, 0), Vector(5.374501, 3.64878, 0), Vector(5.205387, 3.660419, 0), Vector(5.089691, 3.662404, 0), Vector(5.030368, 3.663421, 0)], [4, 1, 1, 1, 1, 1, 1, 1, 1, 1, 1, 1, 1, 1, 1, 1, 4], [0, 0.000129587, 0.000252039, 0.00037001, 0.000484505, 0.000598244, 0.000711679, 0.000826611, 0.000945384, 0.001069423, 0.001198971, 0.001335914, 0.001479808, 0.001632226, 0.001793224, 0.001962357, 0.002140344], False, 3, [1, 1, 1, 1, 1, 1, 1, 1, 1, 1, 1, 1, 1, 1, 1, 1, 1, 1, 1], False),  # 5
    Part.BSplineCurve([Vector(5.030368, 3.663421, 0), Vector(4.970777, 3.662735, 0), Vector(4.849434, 3.661337, 0), Vector(4.728404, 3.652509, 0), Vector(4.666811, 3.648017, 0)], [4, 1, 4], [0, 0.000178739, 0.000363959], False, 3, [1, 1, 1, 1, 1], False),  # 6
    Part.LineSegment(Vector(4.666811, 3.648017, 0), Vector(4.666811, 5.092999, 0)),  # 7
    Part.LineSegment(Vector(4.666811, 1.987365, 0), Vector(4.666811, 3.248259, 0)),  # 8
    Part.BSplineCurve([Vector(4.666811, 3.248259, 0), Vector(4.695287, 3.251597, 0), Vector(4.753673, 3.258443, 0), Vector(4.841865, 3.263846, 0), Vector(4.929428, 3.267959, 0), Vector(4.986972, 3.268697, 0), Vector(5.014963, 3.269055, 0)], [4, 1, 1, 1, 4], [0, 0.000085996, 0.000176325, 0.000264987, 0.000348958], False, 3, [1, 1, 1, 1, 1, 1, 1], False),  # 9
    Part.BSplineCurve([Vector(5.014963, 3.269055, 0), Vector(5.061959, 3.268431, 0), Vector(5.152438, 3.26723, 0), Vector(5.282827, 3.259028, 0), Vector(5.402402, 3.244475, 0), Vector(5.511277, 3.224697, 0), Vector(5.610121, 3.199604, 0), Vector(5.698798, 3.167768, 0), Vector(5.778838, 3.131917, 0), Vector(5.849216, 3.090424, 0), Vector(5.910327, 3.043664, 0), Vector(5.962334, 2.992009, 0), Vector(6.005134, 2.935068, 0), Vector(6.039505, 2.873696, 0), Vector(6.064665, 2.807323, 0), Vector(6.083386, 2.73691, 0), Vector(6.094057, 2.661912, 0), Vector(6.095601, 2.610527, 0), Vector(6.096389, 2.584306, 0)], [4, 1, 1, 1, 1, 1, 1, 1, 1, 1, 1, 1, 1, 1, 1, 1, 4], [0, 0.000140989, 0.000271436, 0.000391718, 0.000502153, 0.000603223, 0.000697263, 0.000784467, 0.000865972, 0.00094177, 0.001014752, 0.001085153, 0.001154804, 0.001225036, 0.001297525, 0.001373013, 0.001451672], False, 3, [1, 1, 1, 1, 1, 1, 1, 1, 1, 1, 1, 1, 1, 1, 1, 1, 1, 1, 1], False),  # 10
    Part.BSplineCurve([Vector(6.096389, 2.584306, 0), Vector(6.095246, 2.552383, 0), Vector(6.093052, 2.491086, 0), Vector(6.075207, 2.403358, 0), Vector(6.045138, 2.32465, 0), Vector(6.002916, 2.254631, 0), Vector(5.948703, 2.194467, 0), Vector(5.885465, 2.141156, 0), Vector(5.811754, 2.096363, 0), Vector(5.757557, 2.073704, 0), Vector(5.729751, 2.062079, 0)], [4, 1, 1, 1, 1, 1, 1, 1, 4], [0, 0.000095709, 0.000183777, 0.00026717, 0.000347354, 0.000427566, 0.000509027, 0.00059476, 0.000685089], False, 3, [1, 1, 1, 1, 1, 1, 1, 1, 1, 1, 1], False),  # 11
    Part.BSplineCurve([Vector(5.729751, 2.062079, 0), Vector(5.690729, 2.049276, 0), Vector(5.608822, 2.022403, 0), Vector(5.498932, 2.004692, 0), Vector(5.402732, 1.996215, 0), Vector(5.322874, 1.990653, 0), Vector(5.237075, 1.987614, 0), Vector(5.178001, 1.98745, 0), Vector(5.147445, 1.987365, 0)], [4, 1, 1, 1, 1, 1, 4], [0, 0.000123059, 0.0002583, 0.000332568, 0.000412855, 0.000498408, 0.00059007], False, 3, [1, 1, 1, 1, 1, 1, 1, 1, 1], False),  # 12
    Part.LineSegment(Vector(5.147445, 1.987365, 0), Vector(4.666811, 1.987365, 0)),  # 13
], False)
sketch6.addConstraint([
    Sketcher.Constraint("Block", 3),
    Sketcher.Constraint("Block", 4),
    Sketcher.Constraint("Block", 5),
    Sketcher.Constraint("Block", 6),
    Sketcher.Constraint("Block", 9),
    Sketcher.Constraint("Block", 10),
    Sketcher.Constraint("Block", 11),
    Sketcher.Constraint("Block", 12),
    Sketcher.Constraint("Coincident", 0, 2, 1, 1),
    Sketcher.Constraint("Coincident", 1, 2, 2, 1),
    Sketcher.Constraint("Coincident", 2, 2, 3, 1),
    Sketcher.Constraint("Coincident", 6, 2, 7, 1),
    Sketcher.Constraint("Coincident", 7, 2, 0, 1),
    Sketcher.Constraint("Coincident", 8, 2, 9, 1),
    Sketcher.Constraint("Coincident", 12, 2, 13, 1),
    Sketcher.Constraint("Coincident", 13, 2, 8, 1),
    Sketcher.Constraint("Horizontal", 0),
    Sketcher.Constraint("Vertical", 1),
    Sketcher.Constraint("Horizontal", 2),
    Sketcher.Constraint("Vertical", 7),
    Sketcher.Constraint("Vertical", 8),
    Sketcher.Constraint("Horizontal", 13),
    Sketcher.Constraint("DistanceY", 1, 2, 1, 1, Q("3.5 mm")),
    Sketcher.Constraint("DistanceX", 0, 2, 0, 1, Q("0.443662 mm")),
])
pad3 = body3.newObject("PartDesign::Pad", "Pad002")
pad3.Profile = sketch6
pad3.Length = 0.2
pad3.Reversed = True
body4 = doc.addObject("PartDesign::Body", "Body003")

# Sketch on XY plane
sketch7 = body4.newObject("Sketcher::SketchObject", "Sketch006")
sketch7.AttachmentSupport = (doc.getObject("XY_Plane003"), [""])
sketch7.MapMode = "FlatFace"
sketch7.addGeometry([
    Part.LineSegment(Vector(7.72, 1.59, 0), Vector(7.72, 4.7, 0)),  # 0
    Part.LineSegment(Vector(7.72, 4.7, 0), Vector(9.42, 4.7, 0)),  # 1
    Part.LineSegment(Vector(9.42, 4.7, 0), Vector(9.42, 5.09, 0)),  # 2
    Part.LineSegment(Vector(9.42, 5.09, 0), Vector(7.28, 5.09, 0)),  # 3
    Part.LineSegment(Vector(7.28, 5.09, 0), Vector(7.28, 1.59, 0)),  # 4
    Part.LineSegment(Vector(7.28, 1.59, 0), Vector(7.72, 1.59, 0)),  # 5
], False)
sketch7.addConstraint([
    Sketcher.Constraint("Coincident", 0, 2, 1, 1),
    Sketcher.Constraint("Coincident", 1, 2, 2, 1),
    Sketcher.Constraint("Coincident", 2, 2, 3, 1),
    Sketcher.Constraint("Coincident", 3, 2, 4, 1),
    Sketcher.Constraint("Coincident", 4, 2, 5, 1),
    Sketcher.Constraint("Coincident", 5, 2, 0, 1),
    Sketcher.Constraint("Vertical", 0),
    Sketcher.Constraint("Horizontal", 1),
    Sketcher.Constraint("Vertical", 2),
    Sketcher.Constraint("Horizontal", 3),
    Sketcher.Constraint("Vertical", 4),
    Sketcher.Constraint("Horizontal", 5),
    Sketcher.Constraint("DistanceY", 4, 2, 4, 1, Q("3.5 mm")),
    Sketcher.Constraint("DistanceY", -1, 1, 2, 2, Q("5.092999 mm")),
    Sketcher.Constraint("DistanceX", 5, 1, 5, 2, Q("0.443662 mm")),
    Sketcher.Constraint("DistanceX", 1, 1, 1, 2, Q("1.697623 mm")),
    Sketcher.Constraint("DistanceY", 0, 1, 0, 2, Q("3.105634 mm")),
    Sketcher.Constraint("DistanceX", -1, 1, 0, 2, Q("7.723149 mm")),
])
pad4 = body4.newObject("PartDesign::Pad", "Pad003")
pad4.Profile = sketch7
pad4.Length = 0.2
pad4.Reversed = True

doc.recompute()
